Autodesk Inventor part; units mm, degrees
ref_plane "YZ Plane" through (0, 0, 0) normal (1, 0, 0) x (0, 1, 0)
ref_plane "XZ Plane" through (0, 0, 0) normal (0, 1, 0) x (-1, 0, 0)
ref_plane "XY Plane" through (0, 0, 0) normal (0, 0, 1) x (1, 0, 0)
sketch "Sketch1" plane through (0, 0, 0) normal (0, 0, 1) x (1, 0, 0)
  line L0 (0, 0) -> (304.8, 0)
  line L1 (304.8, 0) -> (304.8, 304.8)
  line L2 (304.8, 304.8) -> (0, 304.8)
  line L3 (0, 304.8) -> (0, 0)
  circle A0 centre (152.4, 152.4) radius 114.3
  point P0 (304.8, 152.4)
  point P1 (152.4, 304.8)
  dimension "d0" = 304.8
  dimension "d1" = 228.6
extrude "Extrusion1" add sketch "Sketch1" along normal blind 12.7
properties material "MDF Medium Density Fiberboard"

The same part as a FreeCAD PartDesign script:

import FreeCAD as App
import Part
import Sketcher
from FreeCAD import Vector
Q = App.Units.Quantity

doc = App.newDocument("Part")
body = doc.addObject("PartDesign::Body", "Body")

# Sketch on XY plane
sketch1 = doc.addObject("Sketcher::SketchObject", "Sketch")
body.addObject(sketch1)
sketch1.AttachmentSupport = (doc.XY_Plane, [""])
sketch1.MapMode = "FlatFace"
sketch1.addGeometry([
    Part.LineSegment(Vector(0, 304.8, 0), Vector(0, 0, 0)),  # 0
    Part.LineSegment(Vector(0, 0, 0), Vector(304.8, 0, 0)),  # 1
    Part.LineSegment(Vector(304.8, 0, 0), Vector(304.8, 304.8, 0)),  # 2
    Part.LineSegment(Vector(304.8, 304.8, 0), Vector(0, 304.8, 0)),  # 3
    Part.Circle(Vector(152.4, 152.4, 0), Vector(0, 0, 1), 114.3),  # 4
], False)
sketch1.addConstraint([
    Sketcher.Constraint("Coincident", 0, 2, 1, 1),
    Sketcher.Constraint("Coincident", 1, 2, 2, 1),
    Sketcher.Constraint("Coincident", 2, 2, 3, 1),
    Sketcher.Constraint("Coincident", 3, 2, 0, 1),
    Sketcher.Constraint("Vertical", 0),
    Sketcher.Constraint("Horizontal", 1),
    Sketcher.Constraint("Vertical", 2),
    Sketcher.Constraint("Horizontal", 3),
    Sketcher.Constraint("Coincident", 0, 2, -1, 1),
    Sketcher.Constraint("Equal", 3, 0),
    Sketcher.Constraint("Diameter", 4, Q("9 in")),
    Sketcher.Constraint("DistanceX", 1, 1, 1, 2, Q("12 in")),
    Sketcher.Constraint("DistanceX", -1, 1, 4, 3, Q("6 in")),
    Sketcher.Constraint("DistanceY", -1, 1, 4, 3, Q("6 in")),
])
pad1 = doc.addObject("PartDesign::Pad", "Pad")
body.addObject(pad1)
pad1.Profile = sketch1
pad1.Length = Q("0.5 in")

doc.recompute()
